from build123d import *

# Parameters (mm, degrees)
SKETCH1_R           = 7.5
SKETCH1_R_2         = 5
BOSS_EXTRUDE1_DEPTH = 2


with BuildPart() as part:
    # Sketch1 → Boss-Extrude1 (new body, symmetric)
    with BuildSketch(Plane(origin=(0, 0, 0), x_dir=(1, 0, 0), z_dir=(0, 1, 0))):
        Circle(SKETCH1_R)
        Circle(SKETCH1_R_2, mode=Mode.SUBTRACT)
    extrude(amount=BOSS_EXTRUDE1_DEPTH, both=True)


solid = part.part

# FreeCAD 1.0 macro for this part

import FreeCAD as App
import Part
import Sketcher

V = App.Vector

doc = App.newDocument("Part")
params = doc.addObject("Spreadsheet::Sheet", "Params")
for row, (alias, value) in enumerate([
    ("sketch1_diameter", "15 mm"),
    ("sketch1_diameter2", "10 mm"),
    ("pad1_length", "4 mm"),
], start=1):
    params.set(f"A{row}", alias)
    params.set(f"B{row}", "=" + value)
    params.setAlias(f"B{row}", alias)

body = doc.addObject("PartDesign::Body", "Body")

sketch1 = body.newObject("Sketcher::SketchObject", "Sketch")
sketch1.AttachmentSupport = (doc.getObject("XZ_Plane"), [""])
sketch1.MapMode = "FlatFace"
sketch1.addGeometry([
    Part.Circle(V(0, 0, 0), V(0, 0, 1), 8),
    Part.Circle(V(0, 0, 0), V(0, 0, 1), 5),
], False)
sketch1.addConstraint([
    Sketcher.Constraint("Coincident", 0, 3, -1, 1),
    Sketcher.Constraint("Coincident", 1, 3, -1, 1),
    Sketcher.Constraint("Diameter", 0, 15.0),
    Sketcher.Constraint("Diameter", 1, 10.0),
])
sketch1.setExpression("Constraints[2]", "Params.sketch1_diameter")
sketch1.setExpression("Constraints[3]", "Params.sketch1_diameter2")
pad1 = body.newObject("PartDesign::Pad", "Pad")
pad1.Profile = sketch1
pad1.setExpression("Length", "Params.pad1_length")
pad1.Midplane = True

doc.recompute()
